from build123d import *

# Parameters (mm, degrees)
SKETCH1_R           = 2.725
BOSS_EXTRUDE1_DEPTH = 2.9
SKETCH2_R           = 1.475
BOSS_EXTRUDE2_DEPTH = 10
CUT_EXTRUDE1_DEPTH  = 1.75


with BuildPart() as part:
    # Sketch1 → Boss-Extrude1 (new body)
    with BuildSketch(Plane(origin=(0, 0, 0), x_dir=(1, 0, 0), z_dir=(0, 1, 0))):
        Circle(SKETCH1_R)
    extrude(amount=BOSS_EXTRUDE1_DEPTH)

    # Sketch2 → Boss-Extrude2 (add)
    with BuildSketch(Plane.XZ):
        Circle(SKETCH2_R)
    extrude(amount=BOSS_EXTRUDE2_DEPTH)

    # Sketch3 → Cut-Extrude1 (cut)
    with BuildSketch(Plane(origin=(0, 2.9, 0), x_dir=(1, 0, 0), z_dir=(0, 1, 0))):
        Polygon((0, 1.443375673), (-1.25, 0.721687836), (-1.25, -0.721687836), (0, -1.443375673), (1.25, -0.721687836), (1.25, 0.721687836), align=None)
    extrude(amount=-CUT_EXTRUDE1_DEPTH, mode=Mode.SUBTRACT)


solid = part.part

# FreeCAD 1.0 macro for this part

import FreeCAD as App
import Part
import Sketcher
Q = App.Units.Quantity


def add_polygon(sketch, points):
    """Adds a closed chain of lines whose ends are joined by coincident constraints."""
    first, n = sketch.GeometryCount, len(points)
    for a, b in zip(points, points[1:] + points[:1]):
        sketch.addGeometry(Part.LineSegment(App.Vector(*a, 0), App.Vector(*b, 0)), False)
    for i in range(n):
        sketch.addConstraint(Sketcher.Constraint("Coincident", first + i, 2, first + (i + 1) % n, 1))

doc = App.newDocument("Part")
params = doc.addObject("Spreadsheet::Sheet", "Params")
for row, (alias, value) in enumerate([
    ("sketch1_diameter", "5.45 mm"),
    ("pad1_length", "2.9 mm"),
    ("sketch2_diameter", "2.95 mm"),
    ("pad2_length", "10 mm"),
    ("pocket1_length", "1.75 mm"),
], start=1):
    params.set(f"A{row}", alias)
    params.set(f"B{row}", "=" + value)
    params.setAlias(f"B{row}", alias)

body = doc.addObject("PartDesign::Body", "Body")

# Sketch on XZ plane
sketch1 = doc.addObject("Sketcher::SketchObject", "Sketch")
body.addObject(sketch1)
sketch1.AttachmentSupport = (doc.XZ_Plane, [""])
sketch1.MapMode = "FlatFace"
sketch1.addGeometry(Part.Circle(App.Vector(0, 0, 0), App.Vector(0, 0, 1), 2.7), False)
sketch1.addConstraint([
    Sketcher.Constraint("Coincident", 0, 3, -1, 1),
    Sketcher.Constraint("Diameter", 0, Q("5.45 mm")),
])
sketch1.setExpression("Constraints[1]", "Params.sketch1_diameter")
pad1 = doc.addObject("PartDesign::Pad", "Pad")
body.addObject(pad1)
pad1.Profile = sketch1
pad1.setExpression("Length", "Params.pad1_length")
pad1.Reversed = True

# Sketch on XZ plane
sketch2 = doc.addObject("Sketcher::SketchObject", "Sketch001")
body.addObject(sketch2)
sketch2.AttachmentSupport = (doc.XZ_Plane, [""])
sketch2.MapMode = "FlatFace"
sketch2.addGeometry(Part.Circle(App.Vector(0, 0, 0), App.Vector(0, 0, 1), 1.5), False)
sketch2.addConstraint([
    Sketcher.Constraint("Coincident", 0, 3, -1, 1),
    Sketcher.Constraint("Diameter", 0, Q("2.95 mm")),
])
sketch2.setExpression("Constraints[1]", "Params.sketch2_diameter")
pad2 = doc.addObject("PartDesign::Pad", "Pad001")
body.addObject(pad2)
pad2.Profile = sketch2
pad2.setExpression("Length", "Params.pad2_length")

# Sketch on XZ plane
sketch3 = doc.addObject("Sketcher::SketchObject", "Sketch002")
body.addObject(sketch3)
sketch3.AttachmentSupport = (doc.XZ_Plane, [""])
sketch3.MapMode = "FlatFace"
sketch3.AttachmentOffset = App.Placement(App.Vector(0, 0, -2.9), App.Rotation())
add_polygon(sketch3, [(0, -1.4), (-1.2, -0.7), (-1.2, 0.7), (0, 1.4), (1.2, 0.7), (1.2, -0.7)])  # lines 0-5
sketch3.addConstraint([
    Sketcher.Constraint("Vertical", 1),
    Sketcher.Constraint("Vertical", 4),
    Sketcher.Constraint("Symmetric", 0, 2, 3, 2, -1, 1),
    Sketcher.Constraint("Symmetric", 2, 2, 5, 2, -1, 1),
    Sketcher.Constraint("PointOnObject", 2, 2, -2),
    Sketcher.Constraint("Parallel", 2, 5),
    Sketcher.Constraint("Horizontal", 1, 2, 3, 2),
    Sketcher.Constraint("Angle", 0, Q("150 deg")),
    Sketcher.Constraint("DistanceX", 1, 2, 3, 2, Q("2.5 mm")),
    Sketcher.Constraint("DistanceY", 1, 1, 1, 2, Q("1.443376 mm")),
])
pocket1 = doc.addObject("PartDesign::Pocket", "Pocket")
body.addObject(pocket1)
pocket1.Profile = sketch3
pocket1.setExpression("Length", "Params.pocket1_length")
pocket1.Reversed = True

doc.recompute()
